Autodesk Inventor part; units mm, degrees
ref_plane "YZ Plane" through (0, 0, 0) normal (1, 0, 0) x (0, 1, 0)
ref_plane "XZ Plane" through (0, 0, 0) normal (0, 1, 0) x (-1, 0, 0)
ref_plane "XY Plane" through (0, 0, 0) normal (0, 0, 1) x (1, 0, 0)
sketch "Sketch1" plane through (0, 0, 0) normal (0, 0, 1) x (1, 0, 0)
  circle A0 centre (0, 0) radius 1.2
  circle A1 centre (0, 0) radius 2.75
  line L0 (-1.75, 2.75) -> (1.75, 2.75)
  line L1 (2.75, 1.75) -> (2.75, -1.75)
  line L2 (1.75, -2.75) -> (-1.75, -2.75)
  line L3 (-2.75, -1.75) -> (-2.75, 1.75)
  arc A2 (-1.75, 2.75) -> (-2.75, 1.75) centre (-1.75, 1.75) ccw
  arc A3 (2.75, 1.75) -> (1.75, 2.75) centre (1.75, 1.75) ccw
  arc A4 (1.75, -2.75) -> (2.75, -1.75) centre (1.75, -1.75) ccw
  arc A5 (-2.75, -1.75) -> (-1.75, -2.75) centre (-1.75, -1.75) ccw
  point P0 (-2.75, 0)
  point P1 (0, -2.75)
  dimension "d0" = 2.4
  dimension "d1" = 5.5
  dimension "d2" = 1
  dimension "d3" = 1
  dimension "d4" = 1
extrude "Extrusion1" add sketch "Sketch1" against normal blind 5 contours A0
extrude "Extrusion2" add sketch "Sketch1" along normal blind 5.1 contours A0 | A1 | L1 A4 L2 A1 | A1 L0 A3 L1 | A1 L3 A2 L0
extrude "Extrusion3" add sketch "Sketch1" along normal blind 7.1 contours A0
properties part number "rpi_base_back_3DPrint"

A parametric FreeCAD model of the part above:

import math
import FreeCAD as App
import Part
import Sketcher

V = App.Vector
Q = App.Units.Quantity

doc = App.newDocument("Part")
params = doc.addObject("Spreadsheet::Sheet", "Params")
for row, (alias, value) in enumerate([
    ("sketch1_diameter", "2.4 mm"),
    ("pad1_length", "5 mm"),
    ("sketch2_radius", "1 mm"),
    ("sketch2_radius2", "2.75 mm"),
    ("pad2_length", "5.1 mm"),
    ("sketch3_diameter", "2.4 mm"),
    ("pad3_length", "7.1 mm"),
], start=1):
    params.set(f"A{row}", alias)
    params.set(f"B{row}", "=" + value)
    params.setAlias(f"B{row}", alias)

body = doc.addObject("PartDesign::Body", "Body")

# Sketch on XY plane
sketch1 = body.newObject("Sketcher::SketchObject", "Sketch")
sketch1.AttachmentSupport = (doc.getObject("XY_Plane"), [""])
sketch1.MapMode = "FlatFace"
sketch1.addGeometry(Part.Circle(V(0, 0, 0), V(0, 0, 1), 1.2), False)
sketch1.addConstraint([
    Sketcher.Constraint("Coincident", 0, 3, -1, 1),
    Sketcher.Constraint("Diameter", 0, Q("2.4 mm")),
])
sketch1.setExpression("Constraints[1]", "Params.sketch1_diameter")
pad1 = body.newObject("PartDesign::Pad", "Pad")
pad1.Profile = sketch1
pad1.setExpression("Length", "Params.pad1_length")
pad1.Reversed = True

# Sketch on XY plane
sketch2 = body.newObject("Sketcher::SketchObject", "Sketch001")
sketch2.AttachmentSupport = (doc.getObject("XY_Plane"), [""])
sketch2.MapMode = "FlatFace"
sketch2.addGeometry([
    Part.ArcOfCircle(Part.Circle(V(0, 0, 0), V(0, 0, 1), 2.8), math.radians(180), math.radians(270)),  # 0
    Part.LineSegment(V(0, -2.8, 0), V(1.8, -2.8, 0)),  # 1
    Part.ArcOfCircle(Part.Circle(V(1.8, -1.8, 0), V(0, 0, 1), 1), math.radians(-90), math.radians(0)),  # 2
    Part.LineSegment(V(2.8, -1.8, 0), V(2.8, 1.8, 0)),  # 3
    Part.ArcOfCircle(Part.Circle(V(1.8, 1.8, 0), V(0, 0, 1), 1), math.radians(0), math.radians(90)),  # 4
    Part.LineSegment(V(1.8, 2.8, 0), V(-1.8, 2.8, 0)),  # 5
    Part.ArcOfCircle(Part.Circle(V(-1.8, 1.8, 0), V(0, 0, 1), 1), math.radians(90), math.radians(180)),  # 6
    Part.LineSegment(V(-2.8, 1.8, 0), V(-2.8, 0, 0)),  # 7
], False)
sketch2.addConstraint([
    Sketcher.Constraint("Tangent", 0, 2, 1, 1),
    Sketcher.Constraint("Tangent", 1, 2, 2, 1),
    Sketcher.Constraint("Tangent", 2, 2, 3, 1),
    Sketcher.Constraint("Tangent", 3, 2, 4, 1),
    Sketcher.Constraint("Tangent", 4, 2, 5, 1),
    Sketcher.Constraint("Tangent", 5, 2, 6, 1),
    Sketcher.Constraint("Tangent", 6, 2, 7, 1),
    Sketcher.Constraint("Tangent", 7, 2, 0, 1),
    Sketcher.Constraint("Horizontal", 1),
    Sketcher.Constraint("Vertical", 3),
    Sketcher.Constraint("Horizontal", 5),
    Sketcher.Constraint("Vertical", 7),
    Sketcher.Constraint("Coincident", 0, 3, -1, 1),
    Sketcher.Constraint("Equal", 2, 4),
    Sketcher.Constraint("Equal", 4, 6),
    Sketcher.Constraint("Symmetric", 2, 3, 6, 3, -1, 1),
    Sketcher.Constraint("Radius", 2, Q("1 mm")),
    Sketcher.Constraint("Radius", 0, Q("2.75 mm")),
])
sketch2.setExpression("Constraints[16]", "Params.sketch2_radius")
sketch2.setExpression("Constraints[17]", "Params.sketch2_radius2")
pad2 = body.newObject("PartDesign::Pad", "Pad001")
pad2.Profile = sketch2
pad2.setExpression("Length", "Params.pad2_length")

# Sketch on XY plane
sketch3 = body.newObject("Sketcher::SketchObject", "Sketch002")
sketch3.AttachmentSupport = (doc.getObject("XY_Plane"), [""])
sketch3.MapMode = "FlatFace"
sketch3.addGeometry(Part.Circle(V(0, 0, 0), V(0, 0, 1), 1.2), False)
sketch3.addConstraint([
    Sketcher.Constraint("Coincident", 0, 3, -1, 1),
    Sketcher.Constraint("Diameter", 0, Q("2.4 mm")),
])
sketch3.setExpression("Constraints[1]", "Params.sketch3_diameter")
pad3 = body.newObject("PartDesign::Pad", "Pad002")
pad3.Profile = sketch3
pad3.setExpression("Length", "Params.pad3_length")

doc.recompute()
